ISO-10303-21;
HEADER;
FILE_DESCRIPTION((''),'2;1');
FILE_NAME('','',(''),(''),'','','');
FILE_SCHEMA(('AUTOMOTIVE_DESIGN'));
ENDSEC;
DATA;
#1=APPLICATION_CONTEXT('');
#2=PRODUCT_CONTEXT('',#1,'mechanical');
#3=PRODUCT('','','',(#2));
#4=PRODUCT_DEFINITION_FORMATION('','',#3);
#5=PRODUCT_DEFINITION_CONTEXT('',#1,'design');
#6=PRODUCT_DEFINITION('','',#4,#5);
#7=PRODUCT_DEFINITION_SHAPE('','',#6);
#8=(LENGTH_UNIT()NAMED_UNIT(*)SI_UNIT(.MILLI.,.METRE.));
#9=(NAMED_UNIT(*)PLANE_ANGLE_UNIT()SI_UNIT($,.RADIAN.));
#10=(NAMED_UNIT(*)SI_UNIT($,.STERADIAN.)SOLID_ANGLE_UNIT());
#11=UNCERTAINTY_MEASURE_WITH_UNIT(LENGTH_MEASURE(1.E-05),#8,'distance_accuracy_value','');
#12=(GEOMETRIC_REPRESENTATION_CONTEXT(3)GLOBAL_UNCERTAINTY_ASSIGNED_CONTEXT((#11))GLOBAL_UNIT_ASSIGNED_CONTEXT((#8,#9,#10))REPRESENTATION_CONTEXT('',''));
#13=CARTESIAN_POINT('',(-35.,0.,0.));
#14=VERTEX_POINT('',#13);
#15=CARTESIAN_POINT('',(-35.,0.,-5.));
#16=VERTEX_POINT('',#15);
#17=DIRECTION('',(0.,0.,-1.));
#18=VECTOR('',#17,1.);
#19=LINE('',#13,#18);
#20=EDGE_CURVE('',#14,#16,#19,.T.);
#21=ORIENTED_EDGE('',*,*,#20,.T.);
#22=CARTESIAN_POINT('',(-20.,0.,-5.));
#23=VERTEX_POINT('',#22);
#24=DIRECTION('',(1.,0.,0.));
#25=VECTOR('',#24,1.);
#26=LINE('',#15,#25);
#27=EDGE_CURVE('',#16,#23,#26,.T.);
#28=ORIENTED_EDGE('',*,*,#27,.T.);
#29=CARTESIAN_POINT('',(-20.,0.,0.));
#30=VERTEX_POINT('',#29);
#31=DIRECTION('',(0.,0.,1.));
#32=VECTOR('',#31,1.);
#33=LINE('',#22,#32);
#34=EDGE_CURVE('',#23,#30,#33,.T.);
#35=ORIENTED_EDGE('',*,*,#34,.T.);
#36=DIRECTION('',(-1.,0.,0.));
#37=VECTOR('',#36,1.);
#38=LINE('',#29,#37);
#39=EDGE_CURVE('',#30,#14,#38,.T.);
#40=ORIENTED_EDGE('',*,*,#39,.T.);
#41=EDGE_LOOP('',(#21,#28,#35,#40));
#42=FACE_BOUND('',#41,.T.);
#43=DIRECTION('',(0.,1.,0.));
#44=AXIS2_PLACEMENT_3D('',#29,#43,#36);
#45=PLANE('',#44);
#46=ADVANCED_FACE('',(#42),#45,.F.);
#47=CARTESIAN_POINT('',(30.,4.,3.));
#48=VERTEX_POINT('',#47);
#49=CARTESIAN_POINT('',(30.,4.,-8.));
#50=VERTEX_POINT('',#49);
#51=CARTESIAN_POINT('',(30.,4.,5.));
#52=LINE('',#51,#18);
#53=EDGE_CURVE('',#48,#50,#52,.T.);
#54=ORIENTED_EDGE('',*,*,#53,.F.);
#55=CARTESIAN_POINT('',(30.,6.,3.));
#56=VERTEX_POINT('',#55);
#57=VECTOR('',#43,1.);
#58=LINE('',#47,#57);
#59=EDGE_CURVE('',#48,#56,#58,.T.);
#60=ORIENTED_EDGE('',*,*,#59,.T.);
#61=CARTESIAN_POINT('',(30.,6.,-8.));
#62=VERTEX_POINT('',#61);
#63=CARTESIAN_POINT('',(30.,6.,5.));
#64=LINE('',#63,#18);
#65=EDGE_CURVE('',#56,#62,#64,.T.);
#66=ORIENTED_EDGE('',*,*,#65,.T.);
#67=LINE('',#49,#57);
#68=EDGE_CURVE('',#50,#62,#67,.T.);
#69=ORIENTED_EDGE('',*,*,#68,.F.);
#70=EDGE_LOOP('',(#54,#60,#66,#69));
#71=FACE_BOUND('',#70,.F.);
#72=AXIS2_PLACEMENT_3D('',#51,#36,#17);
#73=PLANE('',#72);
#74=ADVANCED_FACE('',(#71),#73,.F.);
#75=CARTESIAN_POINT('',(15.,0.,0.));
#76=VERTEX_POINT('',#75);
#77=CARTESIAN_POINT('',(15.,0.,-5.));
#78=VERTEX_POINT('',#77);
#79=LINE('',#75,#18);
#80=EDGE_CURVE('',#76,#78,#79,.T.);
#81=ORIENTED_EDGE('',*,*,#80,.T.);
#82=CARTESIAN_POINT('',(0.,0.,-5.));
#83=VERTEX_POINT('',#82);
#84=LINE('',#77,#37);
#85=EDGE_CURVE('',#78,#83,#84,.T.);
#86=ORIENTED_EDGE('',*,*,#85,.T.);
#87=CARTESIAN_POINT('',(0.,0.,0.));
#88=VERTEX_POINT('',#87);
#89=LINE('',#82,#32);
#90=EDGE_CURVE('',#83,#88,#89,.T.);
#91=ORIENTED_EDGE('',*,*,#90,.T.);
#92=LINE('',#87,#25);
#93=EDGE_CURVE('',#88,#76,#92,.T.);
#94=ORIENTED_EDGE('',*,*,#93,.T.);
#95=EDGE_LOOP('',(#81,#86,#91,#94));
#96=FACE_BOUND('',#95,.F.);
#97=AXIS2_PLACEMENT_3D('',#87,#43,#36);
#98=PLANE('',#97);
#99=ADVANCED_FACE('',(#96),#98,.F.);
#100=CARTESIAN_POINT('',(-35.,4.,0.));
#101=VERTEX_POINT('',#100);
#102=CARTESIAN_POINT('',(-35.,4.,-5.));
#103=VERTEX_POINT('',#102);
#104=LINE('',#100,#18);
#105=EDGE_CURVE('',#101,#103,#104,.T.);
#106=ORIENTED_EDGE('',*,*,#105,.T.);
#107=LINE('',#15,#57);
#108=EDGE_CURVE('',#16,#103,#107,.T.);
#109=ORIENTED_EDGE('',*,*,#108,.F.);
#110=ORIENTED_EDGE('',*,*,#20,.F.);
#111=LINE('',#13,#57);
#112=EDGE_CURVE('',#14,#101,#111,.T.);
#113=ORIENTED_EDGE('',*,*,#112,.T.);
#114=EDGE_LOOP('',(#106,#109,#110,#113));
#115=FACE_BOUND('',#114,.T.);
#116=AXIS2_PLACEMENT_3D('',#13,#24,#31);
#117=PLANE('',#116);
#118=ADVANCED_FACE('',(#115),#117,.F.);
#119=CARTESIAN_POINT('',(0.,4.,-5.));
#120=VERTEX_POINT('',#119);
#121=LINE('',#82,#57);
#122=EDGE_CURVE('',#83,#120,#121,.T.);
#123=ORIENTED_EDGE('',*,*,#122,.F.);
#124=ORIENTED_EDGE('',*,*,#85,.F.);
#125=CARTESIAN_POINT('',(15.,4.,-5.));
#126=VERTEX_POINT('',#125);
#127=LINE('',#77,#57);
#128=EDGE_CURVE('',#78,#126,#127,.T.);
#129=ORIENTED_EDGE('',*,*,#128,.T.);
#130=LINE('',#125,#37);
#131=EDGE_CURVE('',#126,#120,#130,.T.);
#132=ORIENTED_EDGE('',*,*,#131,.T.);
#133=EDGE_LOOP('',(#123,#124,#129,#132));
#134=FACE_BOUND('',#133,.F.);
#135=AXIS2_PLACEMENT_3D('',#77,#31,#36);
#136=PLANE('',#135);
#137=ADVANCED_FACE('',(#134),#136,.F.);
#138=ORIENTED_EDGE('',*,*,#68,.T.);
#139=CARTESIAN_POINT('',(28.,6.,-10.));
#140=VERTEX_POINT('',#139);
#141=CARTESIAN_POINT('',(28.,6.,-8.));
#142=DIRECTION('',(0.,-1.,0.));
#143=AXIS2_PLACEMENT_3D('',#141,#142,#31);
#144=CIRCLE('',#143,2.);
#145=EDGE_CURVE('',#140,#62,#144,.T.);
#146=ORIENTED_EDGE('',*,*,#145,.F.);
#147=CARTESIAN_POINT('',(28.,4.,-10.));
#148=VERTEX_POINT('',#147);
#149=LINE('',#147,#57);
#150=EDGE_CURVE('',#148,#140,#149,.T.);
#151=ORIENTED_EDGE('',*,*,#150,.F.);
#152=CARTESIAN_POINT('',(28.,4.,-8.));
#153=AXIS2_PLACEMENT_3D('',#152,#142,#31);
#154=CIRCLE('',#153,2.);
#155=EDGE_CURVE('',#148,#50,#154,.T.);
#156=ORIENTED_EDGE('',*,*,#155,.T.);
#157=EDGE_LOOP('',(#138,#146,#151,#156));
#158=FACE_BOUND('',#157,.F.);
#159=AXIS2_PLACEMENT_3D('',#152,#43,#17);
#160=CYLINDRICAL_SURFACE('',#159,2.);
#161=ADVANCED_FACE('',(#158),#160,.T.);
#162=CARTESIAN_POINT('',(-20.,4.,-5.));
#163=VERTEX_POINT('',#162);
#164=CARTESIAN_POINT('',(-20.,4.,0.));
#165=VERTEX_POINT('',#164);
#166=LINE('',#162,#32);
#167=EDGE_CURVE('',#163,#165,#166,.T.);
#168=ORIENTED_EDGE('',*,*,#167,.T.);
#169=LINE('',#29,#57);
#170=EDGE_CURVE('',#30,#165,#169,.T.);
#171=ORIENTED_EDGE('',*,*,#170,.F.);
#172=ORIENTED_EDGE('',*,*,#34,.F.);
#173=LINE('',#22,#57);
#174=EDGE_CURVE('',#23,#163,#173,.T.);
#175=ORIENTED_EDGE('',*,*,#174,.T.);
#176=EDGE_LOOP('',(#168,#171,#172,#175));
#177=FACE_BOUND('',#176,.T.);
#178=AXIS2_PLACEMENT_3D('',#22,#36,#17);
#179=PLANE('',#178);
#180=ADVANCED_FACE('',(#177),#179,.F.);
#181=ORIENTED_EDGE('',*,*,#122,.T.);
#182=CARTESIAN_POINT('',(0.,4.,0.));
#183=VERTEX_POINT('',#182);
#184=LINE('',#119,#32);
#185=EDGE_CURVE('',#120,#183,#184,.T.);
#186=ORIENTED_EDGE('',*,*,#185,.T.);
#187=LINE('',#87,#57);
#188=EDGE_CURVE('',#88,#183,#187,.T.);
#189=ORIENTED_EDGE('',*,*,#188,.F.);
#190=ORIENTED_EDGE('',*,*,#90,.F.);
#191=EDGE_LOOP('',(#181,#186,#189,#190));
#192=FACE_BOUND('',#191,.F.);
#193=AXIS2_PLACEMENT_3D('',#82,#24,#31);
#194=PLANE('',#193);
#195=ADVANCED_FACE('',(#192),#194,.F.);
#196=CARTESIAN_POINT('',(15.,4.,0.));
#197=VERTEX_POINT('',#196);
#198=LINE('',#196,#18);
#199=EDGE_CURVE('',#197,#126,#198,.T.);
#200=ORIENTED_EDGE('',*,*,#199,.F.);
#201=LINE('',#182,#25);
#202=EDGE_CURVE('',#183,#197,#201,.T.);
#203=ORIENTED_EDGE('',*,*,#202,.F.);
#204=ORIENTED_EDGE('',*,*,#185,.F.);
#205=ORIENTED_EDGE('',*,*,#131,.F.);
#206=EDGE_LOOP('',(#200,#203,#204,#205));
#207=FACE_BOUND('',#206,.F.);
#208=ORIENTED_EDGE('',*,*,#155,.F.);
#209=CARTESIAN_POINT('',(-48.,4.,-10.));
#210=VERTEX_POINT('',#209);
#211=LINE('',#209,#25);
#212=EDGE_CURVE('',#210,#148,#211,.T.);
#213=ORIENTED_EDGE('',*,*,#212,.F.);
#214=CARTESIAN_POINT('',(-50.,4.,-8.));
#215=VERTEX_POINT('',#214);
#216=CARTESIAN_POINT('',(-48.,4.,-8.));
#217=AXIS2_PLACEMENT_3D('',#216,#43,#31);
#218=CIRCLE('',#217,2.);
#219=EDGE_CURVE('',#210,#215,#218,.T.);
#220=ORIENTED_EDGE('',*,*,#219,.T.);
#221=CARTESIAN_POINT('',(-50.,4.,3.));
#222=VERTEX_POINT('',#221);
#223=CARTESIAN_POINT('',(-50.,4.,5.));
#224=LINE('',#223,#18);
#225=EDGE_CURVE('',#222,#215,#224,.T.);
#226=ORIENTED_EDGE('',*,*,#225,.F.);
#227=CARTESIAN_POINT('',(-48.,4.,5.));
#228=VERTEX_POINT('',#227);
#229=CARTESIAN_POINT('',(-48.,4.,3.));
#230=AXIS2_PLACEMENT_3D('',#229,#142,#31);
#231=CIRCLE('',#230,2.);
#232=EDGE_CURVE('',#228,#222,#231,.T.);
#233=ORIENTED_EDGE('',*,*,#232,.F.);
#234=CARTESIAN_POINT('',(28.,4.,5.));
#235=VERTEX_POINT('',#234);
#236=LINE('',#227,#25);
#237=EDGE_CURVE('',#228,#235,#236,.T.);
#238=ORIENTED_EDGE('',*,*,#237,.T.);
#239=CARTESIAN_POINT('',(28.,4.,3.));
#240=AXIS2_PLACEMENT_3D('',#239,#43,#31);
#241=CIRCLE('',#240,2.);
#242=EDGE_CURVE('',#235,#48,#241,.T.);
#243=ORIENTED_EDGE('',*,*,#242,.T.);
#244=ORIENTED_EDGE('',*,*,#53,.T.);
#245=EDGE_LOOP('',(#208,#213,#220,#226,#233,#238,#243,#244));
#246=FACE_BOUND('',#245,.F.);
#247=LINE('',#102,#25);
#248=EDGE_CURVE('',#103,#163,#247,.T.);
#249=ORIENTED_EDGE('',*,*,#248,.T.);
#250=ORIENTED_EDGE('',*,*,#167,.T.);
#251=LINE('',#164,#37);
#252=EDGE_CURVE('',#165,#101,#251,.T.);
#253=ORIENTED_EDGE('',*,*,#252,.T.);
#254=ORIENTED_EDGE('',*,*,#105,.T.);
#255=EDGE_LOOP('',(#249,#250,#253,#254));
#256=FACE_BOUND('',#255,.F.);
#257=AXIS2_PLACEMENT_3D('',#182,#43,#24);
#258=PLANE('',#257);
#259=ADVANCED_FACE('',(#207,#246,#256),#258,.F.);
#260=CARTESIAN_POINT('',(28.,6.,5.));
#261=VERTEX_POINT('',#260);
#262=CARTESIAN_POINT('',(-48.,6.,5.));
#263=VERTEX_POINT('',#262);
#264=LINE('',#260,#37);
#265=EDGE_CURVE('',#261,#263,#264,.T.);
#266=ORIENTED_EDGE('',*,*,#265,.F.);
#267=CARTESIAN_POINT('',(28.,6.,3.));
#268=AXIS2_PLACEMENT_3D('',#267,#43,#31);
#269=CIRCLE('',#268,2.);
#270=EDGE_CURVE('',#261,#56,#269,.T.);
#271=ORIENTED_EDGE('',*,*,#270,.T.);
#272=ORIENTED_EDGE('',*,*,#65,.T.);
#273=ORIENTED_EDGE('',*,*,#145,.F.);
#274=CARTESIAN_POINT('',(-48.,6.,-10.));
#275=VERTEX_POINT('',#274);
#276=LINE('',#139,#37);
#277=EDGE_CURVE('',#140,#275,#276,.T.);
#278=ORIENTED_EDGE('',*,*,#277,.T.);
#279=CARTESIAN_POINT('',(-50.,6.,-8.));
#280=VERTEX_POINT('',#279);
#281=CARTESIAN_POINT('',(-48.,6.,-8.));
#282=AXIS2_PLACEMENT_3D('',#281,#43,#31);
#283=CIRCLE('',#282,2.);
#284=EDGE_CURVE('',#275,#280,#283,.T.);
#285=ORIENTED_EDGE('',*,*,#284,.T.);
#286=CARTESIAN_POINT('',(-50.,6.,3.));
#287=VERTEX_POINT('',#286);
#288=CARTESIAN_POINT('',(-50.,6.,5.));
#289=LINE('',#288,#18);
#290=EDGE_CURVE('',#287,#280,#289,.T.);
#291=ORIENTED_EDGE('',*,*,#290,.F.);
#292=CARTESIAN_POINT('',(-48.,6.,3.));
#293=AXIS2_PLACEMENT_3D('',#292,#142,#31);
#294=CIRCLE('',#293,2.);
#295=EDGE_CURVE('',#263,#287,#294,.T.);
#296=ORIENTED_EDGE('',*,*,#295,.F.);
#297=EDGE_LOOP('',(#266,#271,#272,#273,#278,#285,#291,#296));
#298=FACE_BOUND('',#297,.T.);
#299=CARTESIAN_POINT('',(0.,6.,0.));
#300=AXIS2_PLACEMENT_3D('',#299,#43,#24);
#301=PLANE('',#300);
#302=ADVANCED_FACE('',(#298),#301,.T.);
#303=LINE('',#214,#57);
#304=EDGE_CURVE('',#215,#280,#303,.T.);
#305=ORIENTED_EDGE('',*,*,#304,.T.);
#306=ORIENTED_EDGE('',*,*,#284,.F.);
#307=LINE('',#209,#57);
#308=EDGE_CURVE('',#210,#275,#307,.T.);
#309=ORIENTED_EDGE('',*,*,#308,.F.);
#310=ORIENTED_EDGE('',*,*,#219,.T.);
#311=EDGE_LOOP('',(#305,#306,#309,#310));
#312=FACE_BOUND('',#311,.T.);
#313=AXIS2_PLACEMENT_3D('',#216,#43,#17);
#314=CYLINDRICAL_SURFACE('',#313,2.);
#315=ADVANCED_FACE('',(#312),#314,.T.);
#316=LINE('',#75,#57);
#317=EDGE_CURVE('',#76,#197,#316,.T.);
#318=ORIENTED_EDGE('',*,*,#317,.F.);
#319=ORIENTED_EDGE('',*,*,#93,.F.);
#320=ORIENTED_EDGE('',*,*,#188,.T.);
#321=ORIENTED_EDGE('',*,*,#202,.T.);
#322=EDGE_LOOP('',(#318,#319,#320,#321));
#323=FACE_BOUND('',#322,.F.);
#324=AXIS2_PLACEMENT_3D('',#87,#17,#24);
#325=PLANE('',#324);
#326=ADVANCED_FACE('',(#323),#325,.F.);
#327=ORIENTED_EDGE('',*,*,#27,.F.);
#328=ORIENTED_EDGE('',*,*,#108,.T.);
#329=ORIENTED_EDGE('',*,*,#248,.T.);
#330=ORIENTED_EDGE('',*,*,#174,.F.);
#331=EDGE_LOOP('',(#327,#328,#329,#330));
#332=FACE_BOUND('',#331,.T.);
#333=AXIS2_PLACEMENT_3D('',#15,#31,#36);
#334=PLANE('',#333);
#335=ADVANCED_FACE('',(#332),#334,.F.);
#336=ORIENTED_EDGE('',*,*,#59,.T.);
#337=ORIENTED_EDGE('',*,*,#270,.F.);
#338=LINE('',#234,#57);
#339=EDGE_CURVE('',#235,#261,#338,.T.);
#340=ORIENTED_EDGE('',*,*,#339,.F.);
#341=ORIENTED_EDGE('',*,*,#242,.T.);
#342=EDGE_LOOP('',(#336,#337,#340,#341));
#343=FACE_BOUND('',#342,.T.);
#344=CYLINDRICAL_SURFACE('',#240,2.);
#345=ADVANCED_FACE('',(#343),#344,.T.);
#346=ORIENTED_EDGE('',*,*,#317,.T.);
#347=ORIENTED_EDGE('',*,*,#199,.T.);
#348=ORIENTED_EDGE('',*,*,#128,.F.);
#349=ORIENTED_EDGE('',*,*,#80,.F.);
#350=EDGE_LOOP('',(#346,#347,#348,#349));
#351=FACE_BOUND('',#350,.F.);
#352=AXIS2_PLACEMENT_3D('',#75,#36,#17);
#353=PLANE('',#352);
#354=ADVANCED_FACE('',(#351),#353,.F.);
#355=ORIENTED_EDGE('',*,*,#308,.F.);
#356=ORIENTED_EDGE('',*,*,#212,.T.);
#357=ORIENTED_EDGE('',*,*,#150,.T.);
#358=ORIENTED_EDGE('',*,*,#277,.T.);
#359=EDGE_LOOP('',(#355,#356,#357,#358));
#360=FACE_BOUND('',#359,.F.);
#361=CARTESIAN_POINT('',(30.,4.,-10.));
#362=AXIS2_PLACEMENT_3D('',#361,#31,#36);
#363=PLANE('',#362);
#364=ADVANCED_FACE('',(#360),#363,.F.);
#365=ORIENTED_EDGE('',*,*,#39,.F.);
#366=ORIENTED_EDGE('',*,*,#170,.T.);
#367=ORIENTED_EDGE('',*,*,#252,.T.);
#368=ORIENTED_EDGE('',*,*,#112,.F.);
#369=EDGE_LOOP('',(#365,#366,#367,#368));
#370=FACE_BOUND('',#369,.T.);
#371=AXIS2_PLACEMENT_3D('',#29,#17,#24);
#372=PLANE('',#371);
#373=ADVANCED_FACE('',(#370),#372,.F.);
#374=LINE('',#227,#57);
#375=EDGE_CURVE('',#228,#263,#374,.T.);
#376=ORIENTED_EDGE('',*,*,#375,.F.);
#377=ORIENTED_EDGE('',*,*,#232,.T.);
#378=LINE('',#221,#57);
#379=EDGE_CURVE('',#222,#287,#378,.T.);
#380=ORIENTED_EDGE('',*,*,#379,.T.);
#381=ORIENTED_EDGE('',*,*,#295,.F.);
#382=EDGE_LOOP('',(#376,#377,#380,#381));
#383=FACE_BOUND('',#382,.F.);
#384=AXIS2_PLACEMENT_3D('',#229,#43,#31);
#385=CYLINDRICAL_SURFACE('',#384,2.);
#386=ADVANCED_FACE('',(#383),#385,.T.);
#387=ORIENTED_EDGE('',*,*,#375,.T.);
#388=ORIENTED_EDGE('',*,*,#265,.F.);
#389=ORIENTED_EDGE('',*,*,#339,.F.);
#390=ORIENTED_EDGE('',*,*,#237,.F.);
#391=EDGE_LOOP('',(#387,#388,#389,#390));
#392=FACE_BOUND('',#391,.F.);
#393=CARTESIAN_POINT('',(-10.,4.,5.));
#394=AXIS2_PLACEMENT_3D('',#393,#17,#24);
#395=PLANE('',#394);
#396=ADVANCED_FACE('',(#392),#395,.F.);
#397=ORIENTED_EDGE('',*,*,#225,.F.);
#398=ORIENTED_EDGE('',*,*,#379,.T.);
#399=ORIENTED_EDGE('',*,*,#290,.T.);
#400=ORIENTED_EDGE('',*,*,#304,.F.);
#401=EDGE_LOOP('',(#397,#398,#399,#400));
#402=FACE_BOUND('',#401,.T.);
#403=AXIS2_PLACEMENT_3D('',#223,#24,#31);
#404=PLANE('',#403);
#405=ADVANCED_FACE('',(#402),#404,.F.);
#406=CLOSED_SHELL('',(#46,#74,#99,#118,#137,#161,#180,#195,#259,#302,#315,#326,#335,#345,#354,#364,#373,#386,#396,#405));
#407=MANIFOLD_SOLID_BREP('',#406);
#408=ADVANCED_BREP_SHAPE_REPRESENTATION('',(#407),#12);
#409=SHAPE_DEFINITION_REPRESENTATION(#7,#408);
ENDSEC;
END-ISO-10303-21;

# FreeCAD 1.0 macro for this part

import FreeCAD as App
import Part
import Sketcher
Q = App.Units.Quantity


def edges_at(feature, points):
    """Names of the edges that pass closest to the given points."""
    edges = feature.Shape.Edges
    near = lambda p: min(range(len(edges)), key=lambda i: edges[i].distToShape(Part.Vertex(*p))[0])
    return sorted({f"Edge{near(p) + 1}" for p in points})

doc = App.newDocument("Part")
body = doc.addObject("PartDesign::Body", "Body")

# Sketch on XZ plane
sketch1 = body.newObject("Sketcher::SketchObject", "Sketch")
sketch1.AttachmentSupport = (doc.getObject("XZ_Plane"), [""])
sketch1.MapMode = "FlatFace"
sketch1.addGeometry(Part.LineSegment(App.Vector(0, -5, 0), App.Vector(0, 0, 0)), False)
sketch1.addGeometry(Part.LineSegment(App.Vector(0, 0, 0), App.Vector(15, 0, 0)), False)
sketch1.addGeometry(Part.LineSegment(App.Vector(15, 0, 0), App.Vector(15, -5, 0)), False)
sketch1.addGeometry(Part.LineSegment(App.Vector(15, -5, 0), App.Vector(0, -5, 0)), False)
sketch1.addConstraint(Sketcher.Constraint("Coincident", 0, 2, 1, 1))
sketch1.addConstraint(Sketcher.Constraint("Coincident", 1, 2, 2, 1))
sketch1.addConstraint(Sketcher.Constraint("Coincident", 2, 2, 3, 1))
sketch1.addConstraint(Sketcher.Constraint("Coincident", 3, 2, 0, 1))
sketch1.addConstraint(Sketcher.Constraint("Vertical", 0))
sketch1.addConstraint(Sketcher.Constraint("Horizontal", 1))
sketch1.addConstraint(Sketcher.Constraint("Vertical", 2))
sketch1.addConstraint(Sketcher.Constraint("Horizontal", 3))
sketch1.addConstraint(Sketcher.Constraint("Coincident", 0, 2, -1, 1))
sketch1.addConstraint(Sketcher.Constraint("DistanceX", 1, 1, 1, 2, Q("15 mm")))
sketch1.addConstraint(Sketcher.Constraint("DistanceY", 0, 1, 0, 2, Q("5 mm")))
pad1 = body.newObject("PartDesign::Pad", "Pad")
pad1.Profile = sketch1
pad1.Length = 4
pad1.Reversed = True

# Sketch on XZ plane
sketch2 = body.newObject("Sketcher::SketchObject", "Sketch001")
sketch2.AttachmentSupport = (doc.getObject("XZ_Plane"), [""])
sketch2.MapMode = "FlatFace"
sketch2.AttachmentOffset = App.Placement(App.Vector(0, 0, -4), App.Rotation())
sketch2.addGeometry(Part.LineSegment(App.Vector(-10, -10, 0), App.Vector(-10, 5, 0)), False)
sketch2.addGeometry(Part.LineSegment(App.Vector(-10, 5, 0), App.Vector(30, 5, 0)), False)
sketch2.addGeometry(Part.LineSegment(App.Vector(30, 5, 0), App.Vector(30, -10, 0)), False)
sketch2.addGeometry(Part.LineSegment(App.Vector(30, -10, 0), App.Vector(-10, -10, 0)), False)
sketch2.addConstraint(Sketcher.Constraint("Coincident", 0, 2, 1, 1))
sketch2.addConstraint(Sketcher.Constraint("Coincident", 1, 2, 2, 1))
sketch2.addConstraint(Sketcher.Constraint("Coincident", 2, 2, 3, 1))
sketch2.addConstraint(Sketcher.Constraint("Coincident", 3, 2, 0, 1))
sketch2.addConstraint(Sketcher.Constraint("Vertical", 0))
sketch2.addConstraint(Sketcher.Constraint("Horizontal", 1))
sketch2.addConstraint(Sketcher.Constraint("Vertical", 2))
sketch2.addConstraint(Sketcher.Constraint("Horizontal", 3))
sketch2.addConstraint(Sketcher.Constraint("DistanceY", 0, 1, 0, 2, Q("15 mm")))
sketch2.addConstraint(Sketcher.Constraint("DistanceX", 0, 2, -1, 1, Q("10 mm")))
sketch2.addConstraint(Sketcher.Constraint("DistanceY", -1, 1, 0, 2, Q("5 mm")))
sketch2.addConstraint(Sketcher.Constraint("DistanceX", 1, 1, 1, 2, Q("40 mm")))
pad2 = body.newObject("PartDesign::Pad", "Pad001")
pad2.Profile = sketch2
pad2.Length = 2
pad2.Reversed = True
doc.recompute()

fillet = body.newObject("PartDesign::Fillet", "Fillet")
fillet.Base = (pad2, edges_at(pad2, [(30, 5, 5), (30, 5, -10)]))
fillet.Radius = 2
doc.recompute()

datumplane = body.newObject("PartDesign::Plane", "DatumPlane")
datumplane.AttachmentSupport = (doc.getObject("YZ_Plane"), [""])
datumplane.MapMode = "FlatFace"
datumplane.AttachmentOffset = App.Placement(App.Vector(0, 0, -10), App.Rotation())
mirrored = body.newObject("PartDesign::Mirrored", "Mirrored")
mirrored.TransformMode = "Transform body"
mirrored.MirrorPlane = (datumplane, [""])
body.Tip = mirrored

doc.recompute()
